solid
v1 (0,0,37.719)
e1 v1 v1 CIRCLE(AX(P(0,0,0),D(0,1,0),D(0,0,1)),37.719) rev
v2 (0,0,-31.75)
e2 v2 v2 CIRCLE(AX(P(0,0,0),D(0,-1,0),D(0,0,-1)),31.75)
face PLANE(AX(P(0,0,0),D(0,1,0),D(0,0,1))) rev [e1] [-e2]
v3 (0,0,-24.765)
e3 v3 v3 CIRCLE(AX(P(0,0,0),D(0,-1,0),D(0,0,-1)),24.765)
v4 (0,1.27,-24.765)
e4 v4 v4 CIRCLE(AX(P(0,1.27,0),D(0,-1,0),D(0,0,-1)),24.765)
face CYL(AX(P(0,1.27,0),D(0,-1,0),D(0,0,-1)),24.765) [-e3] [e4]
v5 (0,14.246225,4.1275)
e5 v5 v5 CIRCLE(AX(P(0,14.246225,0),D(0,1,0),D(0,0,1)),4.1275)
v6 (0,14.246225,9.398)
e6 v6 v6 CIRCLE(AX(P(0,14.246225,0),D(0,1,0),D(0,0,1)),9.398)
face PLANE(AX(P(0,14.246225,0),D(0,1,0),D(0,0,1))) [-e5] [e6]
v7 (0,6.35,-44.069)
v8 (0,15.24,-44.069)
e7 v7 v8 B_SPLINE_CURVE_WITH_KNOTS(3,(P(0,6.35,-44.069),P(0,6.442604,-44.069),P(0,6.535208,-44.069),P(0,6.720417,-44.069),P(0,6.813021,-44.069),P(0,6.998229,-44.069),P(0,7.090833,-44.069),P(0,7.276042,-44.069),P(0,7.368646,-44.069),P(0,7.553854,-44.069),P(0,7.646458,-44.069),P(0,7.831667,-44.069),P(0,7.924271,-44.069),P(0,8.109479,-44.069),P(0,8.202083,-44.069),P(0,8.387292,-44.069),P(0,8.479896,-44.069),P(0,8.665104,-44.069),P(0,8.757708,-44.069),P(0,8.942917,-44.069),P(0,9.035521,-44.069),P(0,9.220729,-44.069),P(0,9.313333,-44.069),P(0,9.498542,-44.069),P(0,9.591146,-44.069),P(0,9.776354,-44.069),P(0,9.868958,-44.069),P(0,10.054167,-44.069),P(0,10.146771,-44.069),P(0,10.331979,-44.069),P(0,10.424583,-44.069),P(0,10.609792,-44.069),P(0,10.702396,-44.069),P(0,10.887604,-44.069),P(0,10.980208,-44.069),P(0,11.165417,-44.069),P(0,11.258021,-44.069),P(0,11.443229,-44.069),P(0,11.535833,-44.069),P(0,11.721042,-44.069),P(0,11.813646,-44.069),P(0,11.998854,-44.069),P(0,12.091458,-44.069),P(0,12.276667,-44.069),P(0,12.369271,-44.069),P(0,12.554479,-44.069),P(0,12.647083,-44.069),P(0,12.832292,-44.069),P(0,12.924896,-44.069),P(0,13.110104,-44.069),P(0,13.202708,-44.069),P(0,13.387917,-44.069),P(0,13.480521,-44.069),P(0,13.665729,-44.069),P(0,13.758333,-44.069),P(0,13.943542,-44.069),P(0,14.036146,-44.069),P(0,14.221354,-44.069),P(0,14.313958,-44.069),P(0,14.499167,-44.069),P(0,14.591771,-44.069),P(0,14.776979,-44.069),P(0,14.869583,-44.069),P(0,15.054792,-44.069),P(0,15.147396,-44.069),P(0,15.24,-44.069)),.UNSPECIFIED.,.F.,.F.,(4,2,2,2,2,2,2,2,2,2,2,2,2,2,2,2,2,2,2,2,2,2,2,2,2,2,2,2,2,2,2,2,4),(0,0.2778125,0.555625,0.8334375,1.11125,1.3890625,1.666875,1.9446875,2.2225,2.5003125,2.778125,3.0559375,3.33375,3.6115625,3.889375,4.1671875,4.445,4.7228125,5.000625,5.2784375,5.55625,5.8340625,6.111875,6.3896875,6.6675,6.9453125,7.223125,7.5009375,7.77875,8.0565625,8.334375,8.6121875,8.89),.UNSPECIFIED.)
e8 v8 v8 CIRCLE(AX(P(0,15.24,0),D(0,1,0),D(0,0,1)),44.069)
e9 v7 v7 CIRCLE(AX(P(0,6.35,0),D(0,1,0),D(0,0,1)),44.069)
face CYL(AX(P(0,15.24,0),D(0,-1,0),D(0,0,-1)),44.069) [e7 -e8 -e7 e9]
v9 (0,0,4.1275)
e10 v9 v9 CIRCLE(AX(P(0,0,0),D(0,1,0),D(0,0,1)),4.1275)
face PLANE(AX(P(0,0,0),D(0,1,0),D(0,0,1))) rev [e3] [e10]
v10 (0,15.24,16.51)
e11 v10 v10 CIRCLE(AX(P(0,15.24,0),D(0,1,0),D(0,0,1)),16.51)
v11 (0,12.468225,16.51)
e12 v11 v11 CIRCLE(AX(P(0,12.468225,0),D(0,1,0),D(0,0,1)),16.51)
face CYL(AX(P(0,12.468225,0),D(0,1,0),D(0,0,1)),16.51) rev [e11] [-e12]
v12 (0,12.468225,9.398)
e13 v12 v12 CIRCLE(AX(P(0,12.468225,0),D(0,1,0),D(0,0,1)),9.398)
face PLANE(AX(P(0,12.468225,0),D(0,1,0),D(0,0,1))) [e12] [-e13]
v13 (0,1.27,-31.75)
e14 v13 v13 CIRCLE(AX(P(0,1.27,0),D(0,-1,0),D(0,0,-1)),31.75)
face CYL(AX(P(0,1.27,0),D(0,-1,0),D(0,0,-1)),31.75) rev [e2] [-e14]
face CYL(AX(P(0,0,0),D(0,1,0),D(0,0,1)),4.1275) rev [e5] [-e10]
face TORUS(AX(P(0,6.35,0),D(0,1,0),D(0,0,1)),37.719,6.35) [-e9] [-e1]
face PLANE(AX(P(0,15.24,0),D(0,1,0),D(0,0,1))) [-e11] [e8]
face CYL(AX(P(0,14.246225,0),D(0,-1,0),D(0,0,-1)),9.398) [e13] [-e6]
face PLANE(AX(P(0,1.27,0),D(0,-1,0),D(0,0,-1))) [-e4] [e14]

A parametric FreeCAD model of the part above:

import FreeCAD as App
import Part
import Sketcher

V = App.Vector
Q = App.Units.Quantity


def edges_at(feature, points):
    """Names of the edges that pass closest to the given points."""
    edges = feature.Shape.Edges
    near = lambda p: min(range(len(edges)), key=lambda i: edges[i].distToShape(Part.Vertex(*p))[0])
    return sorted({f"Edge{near(p) + 1}" for p in points})

doc = App.newDocument("Part")
body = doc.addObject("PartDesign::Body", "Body")

# Sketch on XZ plane
sketch1 = body.newObject("Sketcher::SketchObject", "Sketch")
sketch1.AttachmentSupport = (doc.getObject("XZ_Plane"), [""])
sketch1.MapMode = "FlatFace"
sketch1.addGeometry(Part.Circle(V(0, 0, 0), V(0, 0, 1), 44.069), False)
sketch1.addConstraint(Sketcher.Constraint("Coincident", 0, 3, -1, 1))
sketch1.addConstraint(Sketcher.Constraint("Diameter", 0, Q("3.47 in")))
pad1 = body.newObject("PartDesign::Pad", "Pad")
pad1.Profile = sketch1
pad1.Length = Q("0.6 in")
pad1.Reversed = True

# Sketch on XZ plane
sketch2 = body.newObject("Sketcher::SketchObject", "Sketch001")
sketch2.AttachmentSupport = (doc.getObject("XZ_Plane"), [""])
sketch2.MapMode = "FlatFace"
sketch2.AttachmentOffset = App.Placement(V(0, 0, -0.6 * 25.4), App.Rotation())
sketch2.addGeometry(Part.Circle(V(0, 0, 0), V(0, 0, 1), 16.51), False)
sketch2.addConstraint(Sketcher.Constraint("Coincident", 0, 3, -1, 1))
sketch2.addConstraint(Sketcher.Constraint("Diameter", 0, Q("1.3 in")))
pocket1 = body.newObject("PartDesign::Pocket", "Pocket")
pocket1.Profile = sketch2
pocket1.Length = 2.771775
pocket1.Reversed = True

# Sketch on XZ plane
sketch3 = body.newObject("Sketcher::SketchObject", "Sketch002")
sketch3.AttachmentSupport = (doc.getObject("XZ_Plane"), [""])
sketch3.MapMode = "FlatFace"
sketch3.AttachmentOffset = App.Placement(V(0, 0, -12.468225), App.Rotation())
sketch3.addGeometry(Part.Circle(V(0, 0, 0), V(0, 0, 1), 4.1275), False)
sketch3.addConstraint(Sketcher.Constraint("Coincident", 0, 3, -1, 1))
sketch3.addConstraint(Sketcher.Constraint("Diameter", 0, Q("0.325 in")))
pocket2 = body.newObject("PartDesign::Pocket", "Pocket001")
pocket2.Profile = sketch3
pocket2.Type = "ThroughAll"
pocket2.Reversed = True

# Sketch on XZ plane
sketch4 = body.newObject("Sketcher::SketchObject", "Sketch003")
sketch4.AttachmentSupport = (doc.getObject("XZ_Plane"), [""])
sketch4.MapMode = "FlatFace"
sketch4.AttachmentOffset = App.Placement(V(0, 0, -14.246225), App.Rotation())
sketch4.addGeometry(Part.Circle(V(0, 0, 0), V(0, 0, 1), 9.398), False)
sketch4.addGeometry(Part.Circle(V(0, 0, 0), V(0, 0, 1), 4.1275), False)
sketch4.addConstraint(Sketcher.Constraint("Coincident", 0, 3, -1, 1))
sketch4.addConstraint(Sketcher.Constraint("Coincident", 1, 3, -1, 1))
sketch4.addConstraint(Sketcher.Constraint("Diameter", 0, Q("0.74 in")))
sketch4.addConstraint(Sketcher.Constraint("Diameter", 1, Q("0.325 in")))
pad2 = body.newObject("PartDesign::Pad", "Pad001")
pad2.Profile = sketch4
pad2.Length = Q("0.07 in")
doc.recompute()

fillet = body.newObject("PartDesign::Fillet", "Fillet")
fillet.Base = (pad2, edges_at(pad2, [(0, 0, 44.069)]))
fillet.Radius = Q("0.25 in")

# Sketch on XZ plane
sketch5 = body.newObject("Sketcher::SketchObject", "Sketch004")
sketch5.AttachmentSupport = (doc.getObject("XZ_Plane"), [""])
sketch5.MapMode = "FlatFace"
sketch5.addGeometry(Part.Circle(V(0, 0, 0), V(0, 0, 1), 31.75), False)
sketch5.addGeometry(Part.Circle(V(0, 0, 0), V(0, 0, 1), 24.765), False)
sketch5.addConstraint(Sketcher.Constraint("Coincident", 0, 3, -1, 1))
sketch5.addConstraint(Sketcher.Constraint("Coincident", 1, 3, -1, 1))
sketch5.addConstraint(Sketcher.Constraint("Diameter", 0, Q("2.5 in")))
sketch5.addConstraint(Sketcher.Constraint("Diameter", 1, Q("1.95 in")))
pocket3 = body.newObject("PartDesign::Pocket", "Pocket002")
pocket3.Profile = sketch5
pocket3.Length = Q("0.05 in")

doc.recompute()
